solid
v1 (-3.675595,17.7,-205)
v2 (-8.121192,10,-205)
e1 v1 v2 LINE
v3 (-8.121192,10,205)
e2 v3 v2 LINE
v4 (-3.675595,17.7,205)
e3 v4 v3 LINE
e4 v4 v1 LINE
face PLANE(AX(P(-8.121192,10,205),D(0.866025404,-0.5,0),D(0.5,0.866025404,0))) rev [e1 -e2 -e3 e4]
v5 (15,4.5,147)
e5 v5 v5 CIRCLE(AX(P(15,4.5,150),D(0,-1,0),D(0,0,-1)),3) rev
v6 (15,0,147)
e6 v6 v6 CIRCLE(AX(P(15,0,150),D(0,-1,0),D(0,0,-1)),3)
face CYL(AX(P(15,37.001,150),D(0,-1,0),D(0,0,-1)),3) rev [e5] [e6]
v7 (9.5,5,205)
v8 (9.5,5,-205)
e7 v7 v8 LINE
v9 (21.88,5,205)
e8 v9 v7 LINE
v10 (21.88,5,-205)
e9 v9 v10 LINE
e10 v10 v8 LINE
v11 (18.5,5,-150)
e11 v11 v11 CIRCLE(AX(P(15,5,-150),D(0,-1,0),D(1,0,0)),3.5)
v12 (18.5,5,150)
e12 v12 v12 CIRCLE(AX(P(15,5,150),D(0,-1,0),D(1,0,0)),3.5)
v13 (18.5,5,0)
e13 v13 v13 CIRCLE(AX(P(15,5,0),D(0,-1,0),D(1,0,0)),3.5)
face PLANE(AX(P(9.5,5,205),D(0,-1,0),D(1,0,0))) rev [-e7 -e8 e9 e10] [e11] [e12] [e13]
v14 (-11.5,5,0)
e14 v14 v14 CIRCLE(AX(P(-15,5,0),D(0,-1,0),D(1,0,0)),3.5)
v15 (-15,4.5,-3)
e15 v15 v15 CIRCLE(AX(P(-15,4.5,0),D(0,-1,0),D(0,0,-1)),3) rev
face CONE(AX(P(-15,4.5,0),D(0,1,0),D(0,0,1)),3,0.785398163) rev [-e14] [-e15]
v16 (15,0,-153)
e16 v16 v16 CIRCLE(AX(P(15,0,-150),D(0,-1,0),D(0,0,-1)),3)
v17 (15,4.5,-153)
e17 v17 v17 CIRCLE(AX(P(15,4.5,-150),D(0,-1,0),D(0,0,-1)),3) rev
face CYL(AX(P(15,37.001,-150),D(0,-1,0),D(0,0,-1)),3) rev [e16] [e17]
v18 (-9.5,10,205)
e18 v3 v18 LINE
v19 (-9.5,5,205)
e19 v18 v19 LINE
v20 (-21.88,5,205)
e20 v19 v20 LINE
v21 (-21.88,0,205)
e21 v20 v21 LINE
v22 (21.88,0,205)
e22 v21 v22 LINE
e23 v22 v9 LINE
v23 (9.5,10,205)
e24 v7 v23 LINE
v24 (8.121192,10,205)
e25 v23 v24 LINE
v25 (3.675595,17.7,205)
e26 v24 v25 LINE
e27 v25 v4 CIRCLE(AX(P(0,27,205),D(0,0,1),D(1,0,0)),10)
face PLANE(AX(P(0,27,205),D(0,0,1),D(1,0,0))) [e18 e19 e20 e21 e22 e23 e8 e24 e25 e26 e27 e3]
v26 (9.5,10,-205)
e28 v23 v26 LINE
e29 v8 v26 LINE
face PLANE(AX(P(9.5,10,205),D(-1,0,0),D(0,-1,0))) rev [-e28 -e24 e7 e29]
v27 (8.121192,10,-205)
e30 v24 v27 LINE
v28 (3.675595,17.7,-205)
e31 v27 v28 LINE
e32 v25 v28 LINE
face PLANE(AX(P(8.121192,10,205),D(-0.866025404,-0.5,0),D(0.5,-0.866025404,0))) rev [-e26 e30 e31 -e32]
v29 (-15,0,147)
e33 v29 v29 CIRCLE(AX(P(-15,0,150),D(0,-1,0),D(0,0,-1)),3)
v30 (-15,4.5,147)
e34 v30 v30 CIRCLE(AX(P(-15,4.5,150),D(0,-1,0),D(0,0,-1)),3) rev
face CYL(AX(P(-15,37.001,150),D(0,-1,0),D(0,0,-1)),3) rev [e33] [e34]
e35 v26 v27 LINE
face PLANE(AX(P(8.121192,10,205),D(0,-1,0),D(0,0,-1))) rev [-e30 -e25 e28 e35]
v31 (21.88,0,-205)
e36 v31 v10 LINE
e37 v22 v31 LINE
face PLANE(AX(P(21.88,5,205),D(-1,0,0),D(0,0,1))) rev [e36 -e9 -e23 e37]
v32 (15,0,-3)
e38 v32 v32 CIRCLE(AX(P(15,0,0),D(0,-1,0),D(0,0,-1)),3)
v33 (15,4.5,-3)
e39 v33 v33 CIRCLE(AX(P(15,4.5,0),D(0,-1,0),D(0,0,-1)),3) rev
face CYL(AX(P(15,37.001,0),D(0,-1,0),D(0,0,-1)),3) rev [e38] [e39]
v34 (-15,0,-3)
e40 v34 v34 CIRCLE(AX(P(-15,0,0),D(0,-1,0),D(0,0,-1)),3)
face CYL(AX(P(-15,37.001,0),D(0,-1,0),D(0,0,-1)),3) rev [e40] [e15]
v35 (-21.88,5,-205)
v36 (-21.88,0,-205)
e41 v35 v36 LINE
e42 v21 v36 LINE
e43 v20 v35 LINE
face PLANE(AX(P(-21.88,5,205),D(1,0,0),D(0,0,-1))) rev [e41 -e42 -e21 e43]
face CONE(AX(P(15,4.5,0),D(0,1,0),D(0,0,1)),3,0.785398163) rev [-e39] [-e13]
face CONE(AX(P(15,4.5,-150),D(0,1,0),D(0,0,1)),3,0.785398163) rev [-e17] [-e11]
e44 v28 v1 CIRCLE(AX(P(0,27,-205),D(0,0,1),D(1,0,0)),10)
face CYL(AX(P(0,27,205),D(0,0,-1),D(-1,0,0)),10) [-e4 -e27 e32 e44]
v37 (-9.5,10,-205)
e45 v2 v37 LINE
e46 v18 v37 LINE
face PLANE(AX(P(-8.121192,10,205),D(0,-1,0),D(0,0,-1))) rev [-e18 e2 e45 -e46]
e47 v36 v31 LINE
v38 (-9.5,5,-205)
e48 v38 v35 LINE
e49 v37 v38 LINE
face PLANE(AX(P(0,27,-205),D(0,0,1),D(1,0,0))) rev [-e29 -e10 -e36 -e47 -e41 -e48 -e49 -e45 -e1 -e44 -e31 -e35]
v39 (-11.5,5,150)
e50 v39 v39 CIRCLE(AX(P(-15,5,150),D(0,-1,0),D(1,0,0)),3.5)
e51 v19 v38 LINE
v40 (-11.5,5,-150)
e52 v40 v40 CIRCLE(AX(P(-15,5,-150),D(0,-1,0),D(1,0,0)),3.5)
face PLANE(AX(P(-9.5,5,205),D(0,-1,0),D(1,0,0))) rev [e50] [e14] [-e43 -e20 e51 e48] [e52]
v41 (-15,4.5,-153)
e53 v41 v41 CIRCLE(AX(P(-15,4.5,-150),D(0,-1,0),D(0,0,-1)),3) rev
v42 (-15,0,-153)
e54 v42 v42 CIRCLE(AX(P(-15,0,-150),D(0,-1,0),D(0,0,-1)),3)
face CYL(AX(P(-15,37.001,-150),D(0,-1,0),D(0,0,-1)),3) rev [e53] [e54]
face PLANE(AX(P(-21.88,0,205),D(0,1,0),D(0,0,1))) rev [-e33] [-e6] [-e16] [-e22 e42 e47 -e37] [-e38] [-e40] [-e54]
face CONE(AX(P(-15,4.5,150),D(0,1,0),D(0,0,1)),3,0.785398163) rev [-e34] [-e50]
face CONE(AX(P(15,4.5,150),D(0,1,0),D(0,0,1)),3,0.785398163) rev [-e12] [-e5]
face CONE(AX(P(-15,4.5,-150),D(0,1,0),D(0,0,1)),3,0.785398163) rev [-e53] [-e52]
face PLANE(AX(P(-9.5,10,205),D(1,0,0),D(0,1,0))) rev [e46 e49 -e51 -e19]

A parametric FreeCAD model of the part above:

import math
import FreeCAD as App
import Part
import Sketcher

V = App.Vector
Q = App.Units.Quantity


def edges_at(feature, points):
    """Names of the edges that pass closest to the given points."""
    edges = feature.Shape.Edges
    near = lambda p: min(range(len(edges)), key=lambda i: edges[i].distToShape(Part.Vertex(*p))[0])
    return sorted({f"Edge{near(p) + 1}" for p in points})

doc = App.newDocument("Part")
body = doc.addObject("PartDesign::Body", "Body")

# Sketch on XY plane
sketch1 = doc.addObject("Sketcher::SketchObject", "Sketch")
body.addObject(sketch1)
sketch1.AttachmentSupport = (doc.XY_Plane, [""])
sketch1.MapMode = "FlatFace"
sketch1.addGeometry(Part.LineSegment(V(-3.7, 17.7, 0), V(-8.1, 10, 0)), False)
sketch1.addGeometry(Part.LineSegment(V(-8.1, 10, 0), V(-9.5, 10, 0)), False)
sketch1.addGeometry(Part.LineSegment(V(-9.5, 10, 0), V(-9.5, 5, 0)), False)
sketch1.addGeometry(Part.LineSegment(V(-9.5, 5, 0), V(-21.9, 5, 0)), False)
sketch1.addGeometry(Part.LineSegment(V(-21.9, 5, 0), V(-21.9, 0, 0)), False)
sketch1.addGeometry(Part.LineSegment(V(-21.9, 0, 0), V(21.9, 0, 0)), False)
sketch1.addGeometry(Part.LineSegment(V(21.9, 0, 0), V(21.9, 5, 0)), False)
sketch1.addGeometry(Part.LineSegment(V(21.9, 5, 0), V(9.5, 5, 0)), False)
sketch1.addGeometry(Part.LineSegment(V(9.5, 5, 0), V(9.5, 10, 0)), False)
sketch1.addGeometry(Part.LineSegment(V(9.5, 10, 0), V(8.1, 10, 0)), False)
sketch1.addGeometry(Part.LineSegment(V(8.1, 10, 0), V(3.7, 17.7, 0)), False)
sketch1.addGeometry(Part.ArcOfCircle(Part.Circle(V(0, 27, 0), V(0, 0, 1), 10), math.radians(-68), math.radians(248)), False)
sketch1.addConstraint(Sketcher.Constraint("Coincident", 0, 2, 1, 1))
sketch1.addConstraint(Sketcher.Constraint("Coincident", 1, 2, 2, 1))
sketch1.addConstraint(Sketcher.Constraint("Coincident", 2, 2, 3, 1))
sketch1.addConstraint(Sketcher.Constraint("Coincident", 3, 2, 4, 1))
sketch1.addConstraint(Sketcher.Constraint("Coincident", 4, 2, 5, 1))
sketch1.addConstraint(Sketcher.Constraint("Coincident", 5, 2, 6, 1))
sketch1.addConstraint(Sketcher.Constraint("Coincident", 6, 2, 7, 1))
sketch1.addConstraint(Sketcher.Constraint("Coincident", 7, 2, 8, 1))
sketch1.addConstraint(Sketcher.Constraint("Coincident", 8, 2, 9, 1))
sketch1.addConstraint(Sketcher.Constraint("Coincident", 9, 2, 10, 1))
sketch1.addConstraint(Sketcher.Constraint("Coincident", 10, 2, 11, 1))
sketch1.addConstraint(Sketcher.Constraint("Coincident", 11, 2, 0, 1))
sketch1.addConstraint(Sketcher.Constraint("Horizontal", 1))
sketch1.addConstraint(Sketcher.Constraint("Vertical", 2))
sketch1.addConstraint(Sketcher.Constraint("Horizontal", 3))
sketch1.addConstraint(Sketcher.Constraint("Vertical", 4))
sketch1.addConstraint(Sketcher.Constraint("Horizontal", 5))
sketch1.addConstraint(Sketcher.Constraint("Vertical", 6))
sketch1.addConstraint(Sketcher.Constraint("Horizontal", 7))
sketch1.addConstraint(Sketcher.Constraint("Vertical", 8))
sketch1.addConstraint(Sketcher.Constraint("Horizontal", 9))
sketch1.addConstraint(Sketcher.Constraint("Symmetric", 4, 2, 5, 2, -1, 1))
sketch1.addConstraint(Sketcher.Constraint("Symmetric", 2, 2, 7, 2, -2))
sketch1.addConstraint(Sketcher.Constraint("Symmetric", 0, 2, 9, 2, -2))
sketch1.addConstraint(Sketcher.Constraint("Symmetric", 10, 2, 11, 2, -2))
sketch1.addConstraint(Sketcher.Constraint("Equal", 2, 4))
sketch1.addConstraint(Sketcher.Constraint("Radius", 11, 10.0))
sketch1.addConstraint(Sketcher.Constraint("DistanceY", 2, 2, 2, 1, 5.0))
sketch1.addConstraint(Sketcher.Constraint("Angle", 0, Q("-120 deg")))
sketch1.addConstraint(Sketcher.Constraint("DistanceY", -1, 1, 11, 3, 27.0))
sketch1.addConstraint(Sketcher.Constraint("DistanceX", 2, 2, 7, 2, 19.0))
sketch1.addConstraint(Sketcher.Constraint("DistanceX", 3, 2, 3, 1, 12.38))
sketch1.addConstraint(Sketcher.Constraint("DistanceY", -1, 1, 10, 2, 17.7))
pad1 = doc.addObject("PartDesign::Pad", "Pad")
body.addObject(pad1)
pad1.Profile = sketch1
pad1.Length = 410
pad1.Midplane = True

# Sketch on XZ plane
sketch2 = doc.addObject("Sketcher::SketchObject", "Sketch001")
body.addObject(sketch2)
sketch2.AttachmentSupport = (doc.XZ_Plane, [""])
sketch2.MapMode = "FlatFace"
sketch2.addGeometry(Part.Circle(V(15, 150, 0), V(0, 0, 1), 3), False)
sketch2.addConstraint(Sketcher.Constraint("Diameter", 0, 6.0))
sketch2.addConstraint(Sketcher.Constraint("DistanceX", -1, 1, 0, 3, 15.0))
sketch2.addConstraint(Sketcher.Constraint("DistanceY", -1, 1, 0, 3, 150.0))
pocket1 = doc.addObject("PartDesign::Pocket", "Pocket")
body.addObject(pocket1)
pocket1.Profile = sketch2
pocket1.Type = "UpToFirst"

# Sketch on XZ plane
sketch3 = doc.addObject("Sketcher::SketchObject", "Sketch002")
body.addObject(sketch3)
sketch3.AttachmentSupport = (doc.XZ_Plane, [""])
sketch3.MapMode = "FlatFace"
sketch3.addGeometry(Part.Circle(V(-15, 150, 0), V(0, 0, 1), 3), False)
sketch3.addConstraint(Sketcher.Constraint("Diameter", 0, 6.0))
sketch3.addConstraint(Sketcher.Constraint("DistanceX", 0, 3, -1, 1, 15.0))
sketch3.addConstraint(Sketcher.Constraint("DistanceY", -1, 1, 0, 3, 150.0))
pocket2 = doc.addObject("PartDesign::Pocket", "Pocket001")
body.addObject(pocket2)
pocket2.Profile = sketch3
pocket2.Type = "UpToFirst"

# Sketch on XZ plane
sketch4 = doc.addObject("Sketcher::SketchObject", "Sketch003")
body.addObject(sketch4)
sketch4.AttachmentSupport = (doc.XZ_Plane, [""])
sketch4.MapMode = "FlatFace"
sketch4.addGeometry(Part.Circle(V(-15, 0, 0), V(0, 0, 1), 3), False)
sketch4.addConstraint(Sketcher.Constraint("PointOnObject", 0, 3, -1))
sketch4.addConstraint(Sketcher.Constraint("Diameter", 0, 6.0))
sketch4.addConstraint(Sketcher.Constraint("DistanceX", 0, 3, -1, 1, 15.0))
pocket3 = doc.addObject("PartDesign::Pocket", "Pocket002")
body.addObject(pocket3)
pocket3.Profile = sketch4
pocket3.Type = "UpToFirst"

# Sketch on XZ plane
sketch5 = doc.addObject("Sketcher::SketchObject", "Sketch004")
body.addObject(sketch5)
sketch5.AttachmentSupport = (doc.XZ_Plane, [""])
sketch5.MapMode = "FlatFace"
sketch5.addGeometry(Part.Circle(V(15, 0, 0), V(0, 0, 1), 3), False)
sketch5.addConstraint(Sketcher.Constraint("PointOnObject", 0, 3, -1))
sketch5.addConstraint(Sketcher.Constraint("Diameter", 0, 6.0))
sketch5.addConstraint(Sketcher.Constraint("DistanceX", -1, 1, 0, 3, 15.0))
pocket4 = doc.addObject("PartDesign::Pocket", "Pocket003")
body.addObject(pocket4)
pocket4.Profile = sketch5
pocket4.Type = "UpToFirst"

# Sketch on XZ plane
sketch6 = doc.addObject("Sketcher::SketchObject", "Sketch005")
body.addObject(sketch6)
sketch6.AttachmentSupport = (doc.XZ_Plane, [""])
sketch6.MapMode = "FlatFace"
sketch6.addGeometry(Part.Circle(V(15, -150, 0), V(0, 0, 1), 3), False)
sketch6.addConstraint(Sketcher.Constraint("Diameter", 0, 6.0))
sketch6.addConstraint(Sketcher.Constraint("DistanceX", -1, 1, 0, 3, 15.0))
sketch6.addConstraint(Sketcher.Constraint("DistanceY", 0, 3, -1, 1, 150.0))
pocket5 = doc.addObject("PartDesign::Pocket", "Pocket004")
body.addObject(pocket5)
pocket5.Profile = sketch6
pocket5.Type = "UpToFirst"

# Sketch on XZ plane
sketch7 = doc.addObject("Sketcher::SketchObject", "Sketch006")
body.addObject(sketch7)
sketch7.AttachmentSupport = (doc.XZ_Plane, [""])
sketch7.MapMode = "FlatFace"
sketch7.addGeometry(Part.Circle(V(-15, -150, 0), V(0, 0, 1), 3), False)
sketch7.addConstraint(Sketcher.Constraint("Diameter", 0, 6.0))
sketch7.addConstraint(Sketcher.Constraint("DistanceX", 0, 3, -1, 1, 15.0))
sketch7.addConstraint(Sketcher.Constraint("DistanceY", 0, 3, -1, 1, 150.0))
pocket6 = doc.addObject("PartDesign::Pocket", "Pocket005")
body.addObject(pocket6)
pocket6.Profile = sketch7
pocket6.Type = "UpToFirst"
doc.recompute()

chamfer = doc.addObject("PartDesign::Chamfer", "Chamfer")
body.addObject(chamfer)
chamfer.Base = (pocket6, edges_at(pocket6, [
    (-15, 5, 153),
    (-15, 5, 3),
    (15, 5, 3),
    (15, 5, -147),
    (-15, 5, -147),
    (15, 5, 153),
]))
chamfer.Size = 0.5

doc.recompute()
